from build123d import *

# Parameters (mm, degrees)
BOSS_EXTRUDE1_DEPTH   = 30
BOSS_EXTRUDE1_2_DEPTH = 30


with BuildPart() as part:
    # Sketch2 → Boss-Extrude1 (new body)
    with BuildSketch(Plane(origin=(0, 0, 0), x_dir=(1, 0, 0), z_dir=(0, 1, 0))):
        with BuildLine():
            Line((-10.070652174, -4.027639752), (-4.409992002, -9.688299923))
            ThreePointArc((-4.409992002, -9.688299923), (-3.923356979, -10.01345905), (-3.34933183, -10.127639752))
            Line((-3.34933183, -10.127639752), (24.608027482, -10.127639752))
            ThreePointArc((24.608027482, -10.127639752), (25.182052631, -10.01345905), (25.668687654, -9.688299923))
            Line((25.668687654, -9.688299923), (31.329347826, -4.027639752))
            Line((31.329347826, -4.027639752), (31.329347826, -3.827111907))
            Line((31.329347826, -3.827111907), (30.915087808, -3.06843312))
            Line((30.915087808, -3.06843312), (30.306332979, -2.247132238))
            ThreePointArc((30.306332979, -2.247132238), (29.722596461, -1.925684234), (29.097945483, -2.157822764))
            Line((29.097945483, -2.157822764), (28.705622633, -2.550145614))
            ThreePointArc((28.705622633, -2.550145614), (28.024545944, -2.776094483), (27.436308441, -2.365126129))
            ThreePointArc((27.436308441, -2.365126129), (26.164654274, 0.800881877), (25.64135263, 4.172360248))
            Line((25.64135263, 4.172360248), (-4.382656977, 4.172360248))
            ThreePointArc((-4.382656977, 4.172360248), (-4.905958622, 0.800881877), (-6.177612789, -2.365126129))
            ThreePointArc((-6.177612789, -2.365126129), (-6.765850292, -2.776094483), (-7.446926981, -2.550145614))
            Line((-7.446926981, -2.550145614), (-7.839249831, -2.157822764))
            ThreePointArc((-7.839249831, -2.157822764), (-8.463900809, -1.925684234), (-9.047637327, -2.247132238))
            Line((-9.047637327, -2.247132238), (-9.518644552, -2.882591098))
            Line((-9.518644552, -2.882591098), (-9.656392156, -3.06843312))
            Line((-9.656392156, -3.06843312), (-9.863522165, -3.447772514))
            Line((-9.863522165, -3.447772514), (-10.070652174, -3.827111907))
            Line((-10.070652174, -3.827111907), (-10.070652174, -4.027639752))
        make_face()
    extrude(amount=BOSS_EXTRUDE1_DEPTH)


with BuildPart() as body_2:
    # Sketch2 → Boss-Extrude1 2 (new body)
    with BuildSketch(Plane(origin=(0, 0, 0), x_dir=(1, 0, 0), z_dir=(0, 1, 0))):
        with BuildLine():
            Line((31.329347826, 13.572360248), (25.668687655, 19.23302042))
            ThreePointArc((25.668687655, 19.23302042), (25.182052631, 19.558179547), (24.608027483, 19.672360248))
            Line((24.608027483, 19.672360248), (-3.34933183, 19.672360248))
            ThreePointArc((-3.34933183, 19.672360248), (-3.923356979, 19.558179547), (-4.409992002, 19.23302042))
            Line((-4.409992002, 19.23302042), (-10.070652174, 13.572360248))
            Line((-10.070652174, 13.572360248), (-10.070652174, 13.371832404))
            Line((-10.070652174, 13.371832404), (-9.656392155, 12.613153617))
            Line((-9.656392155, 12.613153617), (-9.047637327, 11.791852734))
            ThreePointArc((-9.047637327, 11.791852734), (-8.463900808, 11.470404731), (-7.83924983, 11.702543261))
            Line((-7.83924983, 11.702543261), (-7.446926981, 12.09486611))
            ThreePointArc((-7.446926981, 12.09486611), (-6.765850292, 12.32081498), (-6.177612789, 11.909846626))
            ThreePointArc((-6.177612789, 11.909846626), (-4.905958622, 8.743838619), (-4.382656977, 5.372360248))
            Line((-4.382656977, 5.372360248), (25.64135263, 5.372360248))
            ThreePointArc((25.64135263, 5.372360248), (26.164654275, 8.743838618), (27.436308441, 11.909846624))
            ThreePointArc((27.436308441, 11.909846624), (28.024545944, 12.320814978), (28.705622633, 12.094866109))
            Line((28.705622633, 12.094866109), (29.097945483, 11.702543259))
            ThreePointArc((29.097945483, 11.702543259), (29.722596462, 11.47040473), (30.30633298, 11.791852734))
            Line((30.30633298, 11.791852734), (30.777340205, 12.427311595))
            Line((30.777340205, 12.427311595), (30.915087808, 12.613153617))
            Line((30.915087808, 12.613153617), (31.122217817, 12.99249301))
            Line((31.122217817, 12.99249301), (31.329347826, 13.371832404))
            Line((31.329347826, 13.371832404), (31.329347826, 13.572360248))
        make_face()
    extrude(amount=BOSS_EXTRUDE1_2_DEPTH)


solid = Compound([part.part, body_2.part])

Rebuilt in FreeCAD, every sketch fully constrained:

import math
import FreeCAD as App
import Part
import Sketcher

doc = App.newDocument("Part")
body = doc.addObject("PartDesign::Body", "Body")

sketch1 = body.newObject("Sketcher::SketchObject", "Sketch")
sketch1.AttachmentSupport = (doc.getObject("XZ_Plane"), [""])
sketch1.MapMode = "FlatFace"
sketch1.addGeometry(Part.LineSegment(App.Vector(-10.07, 4.03, 0), App.Vector(-4.41, 9.69, 0)), False)
sketch1.addGeometry(Part.ArcOfCircle(Part.Circle(App.Vector(-3.35, 8.63, 0), App.Vector(0, 0, 1), 1.5), math.radians(90), math.radians(135)), False)
sketch1.addGeometry(Part.LineSegment(App.Vector(-3.35, 10.13, 0), App.Vector(24.61, 10.13, 0)), False)
sketch1.addGeometry(Part.ArcOfCircle(Part.Circle(App.Vector(24.61, 8.63, 0), App.Vector(0, 0, 1), 1.5), math.radians(45), math.radians(90)), False)
sketch1.addGeometry(Part.LineSegment(App.Vector(25.67, 9.69, 0), App.Vector(31.33, 4.03, 0)), False)
sketch1.addGeometry(Part.LineSegment(App.Vector(31.33, 4.03, 0), App.Vector(31.33, 3.83, 0)), False)
sketch1.addGeometry(Part.LineSegment(App.Vector(31.33, 3.83, 0), App.Vector(30.92, 3.07, 0)), False)
sketch1.addGeometry(Part.LineSegment(App.Vector(30.92, 3.07, 0), App.Vector(30.31, 2.25, 0)), False)
sketch1.addGeometry(Part.ArcOfCircle(Part.Circle(App.Vector(29.66, 2.72, 0), App.Vector(0, 0, 1), 0.8), math.radians(-135), math.radians(-37)), False)
sketch1.addGeometry(Part.LineSegment(App.Vector(29.1, 2.16, 0), App.Vector(28.71, 2.55, 0)), False)
sketch1.addGeometry(Part.ArcOfCircle(Part.Circle(App.Vector(28.14, 1.98, 0), App.Vector(0, 0, 1), 0.8), math.radians(45), math.radians(152)), False)
sketch1.addGeometry(Part.ArcOfCircle(Part.Circle(App.Vector(40.63, -4.77, 0), App.Vector(0, 0, 1), 15), math.radians(152), math.radians(178)), False)
sketch1.addGeometry(Part.LineSegment(App.Vector(25.64, -4.17, 0), App.Vector(-4.38, -4.17, 0)), False)
sketch1.addGeometry(Part.ArcOfCircle(Part.Circle(App.Vector(-19.37, -4.77, 0), App.Vector(0, 0, 1), 15), math.radians(2), math.radians(28)), False)
sketch1.addGeometry(Part.ArcOfCircle(Part.Circle(App.Vector(-6.88, 1.98, 0), App.Vector(0, 0, 1), 0.8), math.radians(28), math.radians(135)), False)
sketch1.addGeometry(Part.LineSegment(App.Vector(-7.45, 2.55, 0), App.Vector(-7.84, 2.16, 0)), False)
sketch1.addGeometry(Part.ArcOfCircle(Part.Circle(App.Vector(-8.4, 2.72, 0), App.Vector(0, 0, 1), 0.8), math.radians(-143), math.radians(-45)), False)
sketch1.addGeometry(Part.LineSegment(App.Vector(-9.05, 2.25, 0), App.Vector(-9.52, 2.88, 0)), False)
sketch1.addGeometry(Part.LineSegment(App.Vector(-9.52, 2.88, 0), App.Vector(-9.66, 3.07, 0)), False)
sketch1.addGeometry(Part.LineSegment(App.Vector(-9.66, 3.07, 0), App.Vector(-9.86, 3.45, 0)), False)
sketch1.addGeometry(Part.LineSegment(App.Vector(-9.86, 3.45, 0), App.Vector(-10.07, 3.83, 0)), False)
sketch1.addGeometry(Part.LineSegment(App.Vector(-10.07, 3.83, 0), App.Vector(-10.07, 4.03, 0)), False)
sketch1.addConstraint(Sketcher.Constraint("Tangent", 0, 2, 1, 2))
sketch1.addConstraint(Sketcher.Constraint("Tangent", 1, 1, 2, 1))
sketch1.addConstraint(Sketcher.Constraint("Tangent", 2, 2, 3, 2))
sketch1.addConstraint(Sketcher.Constraint("Tangent", 3, 1, 4, 1))
sketch1.addConstraint(Sketcher.Constraint("Coincident", 4, 2, 5, 1))
sketch1.addConstraint(Sketcher.Constraint("Coincident", 5, 2, 6, 1))
sketch1.addConstraint(Sketcher.Constraint("Coincident", 6, 2, 7, 1))
sketch1.addConstraint(Sketcher.Constraint("Tangent", 7, 2, 8, 2))
sketch1.addConstraint(Sketcher.Constraint("Tangent", 8, 1, 9, 1))
sketch1.addConstraint(Sketcher.Constraint("Tangent", 9, 2, 10, 1))
sketch1.addConstraint(Sketcher.Constraint("Tangent", 10, 2, 11, 1))
sketch1.addConstraint(Sketcher.Constraint("Coincident", 11, 2, 12, 1))
sketch1.addConstraint(Sketcher.Constraint("Coincident", 12, 2, 13, 1))
sketch1.addConstraint(Sketcher.Constraint("Tangent", 13, 2, 14, 1))
sketch1.addConstraint(Sketcher.Constraint("Tangent", 14, 2, 15, 1))
sketch1.addConstraint(Sketcher.Constraint("Tangent", 15, 2, 16, 2))
sketch1.addConstraint(Sketcher.Constraint("Tangent", 16, 1, 17, 1))
sketch1.addConstraint(Sketcher.Constraint("Coincident", 17, 2, 18, 1))
sketch1.addConstraint(Sketcher.Constraint("Coincident", 18, 2, 19, 1))
sketch1.addConstraint(Sketcher.Constraint("Coincident", 19, 2, 20, 1))
sketch1.addConstraint(Sketcher.Constraint("Coincident", 20, 2, 21, 1))
sketch1.addConstraint(Sketcher.Constraint("Coincident", 21, 2, 0, 1))
sketch1.addConstraint(Sketcher.Constraint("Horizontal", 2))
sketch1.addConstraint(Sketcher.Constraint("Vertical", 5))
sketch1.addConstraint(Sketcher.Constraint("Horizontal", 12))
sketch1.addConstraint(Sketcher.Constraint("Vertical", 21))
sketch1.addConstraint(Sketcher.Constraint("Equal", 1, 3))
sketch1.addConstraint(Sketcher.Constraint("Equal", 8, 10))
sketch1.addConstraint(Sketcher.Constraint("Equal", 11, 13))
sketch1.addConstraint(Sketcher.Constraint("Equal", 10, 14))
sketch1.addConstraint(Sketcher.Constraint("Equal", 14, 16))
sketch1.addConstraint(Sketcher.Constraint("Perpendicular", 0, 4))
sketch1.addConstraint(Sketcher.Constraint("Parallel", 4, 9))
sketch1.addConstraint(Sketcher.Constraint("Perpendicular", 9, 15))
sketch1.addConstraint(Sketcher.Constraint("Parallel", 17, 18))
sketch1.addConstraint(Sketcher.Constraint("Parallel", 19, 20))
sketch1.addConstraint(Sketcher.Constraint("Horizontal", 11, 3, 13, 3))
sketch1.addConstraint(Sketcher.Constraint("Horizontal", 10, 3, 14, 3))
sketch1.addConstraint(Sketcher.Constraint("Horizontal", 8, 3, 16, 3))
sketch1.addConstraint(Sketcher.Constraint("Horizontal", 0, 2, 3, 1))
sketch1.addConstraint(Sketcher.Constraint("Horizontal", 7, 2, 16, 1))
sketch1.addConstraint(Sketcher.Constraint("Horizontal", 6, 2, 18, 2))
sketch1.addConstraint(Sketcher.Constraint("Horizontal", 5, 2, 20, 2))
sketch1.addConstraint(Sketcher.Constraint("Horizontal", 4, 2, 21, 2))
sketch1.addConstraint(Sketcher.Constraint("Equal", 19, 20))
sketch1.addConstraint(Sketcher.Constraint("Radius", 11, 15.0))
sketch1.addConstraint(Sketcher.Constraint("Radius", 1, 1.5))
sketch1.addConstraint(Sketcher.Constraint("Radius", 8, 0.8))
sketch1.addConstraint(Sketcher.Constraint("DistanceX", 13, 3, 11, 3, 60.0))
sketch1.addConstraint(Sketcher.Constraint("DistanceY", 11, 3, 3, 3, 13.4))
sketch1.addConstraint(Sketcher.Constraint("DistanceY", 4, 2, 3, 3, 4.6))
sketch1.addConstraint(Sketcher.Constraint("DistanceY", 12, 2, 1, 3, 12.8))
sketch1.addConstraint(Sketcher.Constraint("DistanceX", 2, 1, 2, 2, 27.957359))
sketch1.addConstraint(Sketcher.Constraint("DistanceY", -1, 1, 0, 2, 9.6883))
sketch1.addConstraint(Sketcher.Constraint("DistanceY", 7, 2, 6, 2, 0.821301))
sketch1.addConstraint(Sketcher.Constraint("Distance", 6, 0.86441))
sketch1.addConstraint(Sketcher.Constraint("Distance", 7, 1.02231))
sketch1.addConstraint(Sketcher.Constraint("Distance", 9, 0.554828))
sketch1.addConstraint(Sketcher.Constraint("DistanceY", 5, 2, 5, 1, 0.200528))
sketch1.addConstraint(Sketcher.Constraint("DistanceX", 1, 3, -1, 1, 3.349332))
sketch1.addConstraint(Sketcher.Constraint("DistanceX", -1, 1, 8, 3, 29.663631))
sketch1.addConstraint(Sketcher.Constraint("DistanceY", -1, 1, 17, 2, 2.882591))
pad1 = body.newObject("PartDesign::Pad", "Pad")
pad1.Profile = sketch1
pad1.Length = 30
pad1.Reversed = True
body2 = doc.addObject("PartDesign::Body", "Body001")

sketch2 = body2.newObject("Sketcher::SketchObject", "Sketch001")
sketch2.AttachmentSupport = (doc.getObject("XZ_Plane001"), [""])
sketch2.MapMode = "FlatFace"
sketch2.addGeometry(Part.LineSegment(App.Vector(31.33, -13.57, 0), App.Vector(25.67, -19.23, 0)), False)
sketch2.addGeometry(Part.ArcOfCircle(Part.Circle(App.Vector(24.61, -18.17, 0), App.Vector(0, 0, 1), 1.5), math.radians(-90), math.radians(-45)), False)
sketch2.addGeometry(Part.LineSegment(App.Vector(24.61, -19.67, 0), App.Vector(-3.35, -19.67, 0)), False)
sketch2.addGeometry(Part.ArcOfCircle(Part.Circle(App.Vector(-3.35, -18.17, 0), App.Vector(0, 0, 1), 1.5), math.radians(-135), math.radians(-90)), False)
sketch2.addGeometry(Part.LineSegment(App.Vector(-4.41, -19.23, 0), App.Vector(-10.07, -13.57, 0)), False)
sketch2.addGeometry(Part.LineSegment(App.Vector(-10.07, -13.57, 0), App.Vector(-10.07, -13.37, 0)), False)
sketch2.addGeometry(Part.LineSegment(App.Vector(-10.07, -13.37, 0), App.Vector(-9.66, -12.61, 0)), False)
sketch2.addGeometry(Part.LineSegment(App.Vector(-9.66, -12.61, 0), App.Vector(-9.05, -11.79, 0)), False)
sketch2.addGeometry(Part.ArcOfCircle(Part.Circle(App.Vector(-8.4, -12.27, 0), App.Vector(0, 0, 1), 0.8), math.radians(45), math.radians(143)), False)
sketch2.addGeometry(Part.LineSegment(App.Vector(-7.84, -11.7, 0), App.Vector(-7.45, -12.09, 0)), False)
sketch2.addGeometry(Part.ArcOfCircle(Part.Circle(App.Vector(-6.88, -11.53, 0), App.Vector(0, 0, 1), 0.8), math.radians(-135), math.radians(-28)), False)
sketch2.addGeometry(Part.ArcOfCircle(Part.Circle(App.Vector(-19.37, -4.77, 0), App.Vector(0, 0, 1), 15), math.radians(-28), math.radians(-2)), False)
sketch2.addGeometry(Part.LineSegment(App.Vector(-4.38, -5.37, 0), App.Vector(25.64, -5.37, 0)), False)
sketch2.addGeometry(Part.ArcOfCircle(Part.Circle(App.Vector(40.63, -4.77, 0), App.Vector(0, 0, 1), 15), math.radians(-178), math.radians(-152)), False)
sketch2.addGeometry(Part.ArcOfCircle(Part.Circle(App.Vector(28.14, -11.53, 0), App.Vector(0, 0, 1), 0.8), math.radians(-152), math.radians(-45)), False)
sketch2.addGeometry(Part.LineSegment(App.Vector(28.71, -12.09, 0), App.Vector(29.1, -11.7, 0)), False)
sketch2.addGeometry(Part.ArcOfCircle(Part.Circle(App.Vector(29.66, -12.27, 0), App.Vector(0, 0, 1), 0.8), math.radians(37), math.radians(135)), False)
sketch2.addGeometry(Part.LineSegment(App.Vector(30.31, -11.79, 0), App.Vector(30.78, -12.43, 0)), False)
sketch2.addGeometry(Part.LineSegment(App.Vector(30.78, -12.43, 0), App.Vector(30.92, -12.61, 0)), False)
sketch2.addGeometry(Part.LineSegment(App.Vector(30.92, -12.61, 0), App.Vector(31.12, -12.99, 0)), False)
sketch2.addGeometry(Part.LineSegment(App.Vector(31.12, -12.99, 0), App.Vector(31.33, -13.37, 0)), False)
sketch2.addGeometry(Part.LineSegment(App.Vector(31.33, -13.37, 0), App.Vector(31.33, -13.57, 0)), False)
sketch2.addConstraint(Sketcher.Constraint("Tangent", 0, 2, 1, 2))
sketch2.addConstraint(Sketcher.Constraint("Tangent", 1, 1, 2, 1))
sketch2.addConstraint(Sketcher.Constraint("Tangent", 2, 2, 3, 2))
sketch2.addConstraint(Sketcher.Constraint("Tangent", 3, 1, 4, 1))
sketch2.addConstraint(Sketcher.Constraint("Coincident", 4, 2, 5, 1))
sketch2.addConstraint(Sketcher.Constraint("Coincident", 5, 2, 6, 1))
sketch2.addConstraint(Sketcher.Constraint("Coincident", 6, 2, 7, 1))
sketch2.addConstraint(Sketcher.Constraint("Tangent", 7, 2, 8, 2))
sketch2.addConstraint(Sketcher.Constraint("Tangent", 8, 1, 9, 1))
sketch2.addConstraint(Sketcher.Constraint("Tangent", 9, 2, 10, 1))
sketch2.addConstraint(Sketcher.Constraint("Tangent", 10, 2, 11, 1))
sketch2.addConstraint(Sketcher.Constraint("Coincident", 11, 2, 12, 1))
sketch2.addConstraint(Sketcher.Constraint("Coincident", 12, 2, 13, 1))
sketch2.addConstraint(Sketcher.Constraint("Tangent", 13, 2, 14, 1))
sketch2.addConstraint(Sketcher.Constraint("Tangent", 14, 2, 15, 1))
sketch2.addConstraint(Sketcher.Constraint("Tangent", 15, 2, 16, 2))
sketch2.addConstraint(Sketcher.Constraint("Tangent", 16, 1, 17, 1))
sketch2.addConstraint(Sketcher.Constraint("Coincident", 17, 2, 18, 1))
sketch2.addConstraint(Sketcher.Constraint("Coincident", 18, 2, 19, 1))
sketch2.addConstraint(Sketcher.Constraint("Coincident", 19, 2, 20, 1))
sketch2.addConstraint(Sketcher.Constraint("Coincident", 20, 2, 21, 1))
sketch2.addConstraint(Sketcher.Constraint("Coincident", 21, 2, 0, 1))
sketch2.addConstraint(Sketcher.Constraint("Horizontal", 2))
sketch2.addConstraint(Sketcher.Constraint("Vertical", 5))
sketch2.addConstraint(Sketcher.Constraint("Horizontal", 12))
sketch2.addConstraint(Sketcher.Constraint("Vertical", 21))
sketch2.addConstraint(Sketcher.Constraint("Equal", 1, 3))
sketch2.addConstraint(Sketcher.Constraint("Equal", 8, 10))
sketch2.addConstraint(Sketcher.Constraint("Equal", 11, 13))
sketch2.addConstraint(Sketcher.Constraint("Equal", 10, 14))
sketch2.addConstraint(Sketcher.Constraint("Equal", 14, 16))
sketch2.addConstraint(Sketcher.Constraint("Perpendicular", 0, 4))
sketch2.addConstraint(Sketcher.Constraint("Parallel", 4, 9))
sketch2.addConstraint(Sketcher.Constraint("Perpendicular", 9, 15))
sketch2.addConstraint(Sketcher.Constraint("Parallel", 17, 18))
sketch2.addConstraint(Sketcher.Constraint("Parallel", 19, 20))
sketch2.addConstraint(Sketcher.Constraint("Horizontal", 11, 3, 13, 3))
sketch2.addConstraint(Sketcher.Constraint("Horizontal", 10, 3, 14, 3))
sketch2.addConstraint(Sketcher.Constraint("Horizontal", 8, 3, 16, 3))
sketch2.addConstraint(Sketcher.Constraint("Horizontal", 0, 2, 3, 1))
sketch2.addConstraint(Sketcher.Constraint("Horizontal", 7, 2, 16, 1))
sketch2.addConstraint(Sketcher.Constraint("Horizontal", 6, 2, 18, 2))
sketch2.addConstraint(Sketcher.Constraint("Horizontal", 5, 2, 20, 2))
sketch2.addConstraint(Sketcher.Constraint("Horizontal", 4, 2, 21, 2))
sketch2.addConstraint(Sketcher.Constraint("Equal", 19, 20))
sketch2.addConstraint(Sketcher.Constraint("Radius", 11, 15.0))
sketch2.addConstraint(Sketcher.Constraint("Radius", 1, 1.5))
sketch2.addConstraint(Sketcher.Constraint("Radius", 8, 0.8))
sketch2.addConstraint(Sketcher.Constraint("DistanceX", 11, 3, 13, 3, 60.0))
sketch2.addConstraint(Sketcher.Constraint("DistanceY", 3, 3, 11, 3, 13.4))
sketch2.addConstraint(Sketcher.Constraint("DistanceY", 3, 3, 4, 2, 4.6))
sketch2.addConstraint(Sketcher.Constraint("DistanceY", 1, 3, 12, 2, 12.8))
sketch2.addConstraint(Sketcher.Constraint("DistanceX", 2, 2, 2, 1, 27.957359))
sketch2.addConstraint(Sketcher.Constraint("DistanceY", 6, 2, 7, 2, 0.821301))
sketch2.addConstraint(Sketcher.Constraint("Distance", 6, 0.86441))
sketch2.addConstraint(Sketcher.Constraint("Distance", 7, 1.02231))
sketch2.addConstraint(Sketcher.Constraint("Distance", 9, 0.554828))
sketch2.addConstraint(Sketcher.Constraint("DistanceY", 5, 1, 5, 2, 0.200528))
sketch2.addConstraint(Sketcher.Constraint("DistanceY", 1, 3, -1, 1, 18.17236))
sketch2.addConstraint(Sketcher.Constraint("DistanceX", 3, 3, -1, 1, 3.349332))
sketch2.addConstraint(Sketcher.Constraint("DistanceY", 8, 3, -1, 1, 12.268229))
sketch2.addConstraint(Sketcher.Constraint("DistanceX", -1, 1, 17, 2, 30.77734))
pad2 = body2.newObject("PartDesign::Pad", "Pad001")
pad2.Profile = sketch2
pad2.Length = 30
pad2.Reversed = True

doc.recompute()
